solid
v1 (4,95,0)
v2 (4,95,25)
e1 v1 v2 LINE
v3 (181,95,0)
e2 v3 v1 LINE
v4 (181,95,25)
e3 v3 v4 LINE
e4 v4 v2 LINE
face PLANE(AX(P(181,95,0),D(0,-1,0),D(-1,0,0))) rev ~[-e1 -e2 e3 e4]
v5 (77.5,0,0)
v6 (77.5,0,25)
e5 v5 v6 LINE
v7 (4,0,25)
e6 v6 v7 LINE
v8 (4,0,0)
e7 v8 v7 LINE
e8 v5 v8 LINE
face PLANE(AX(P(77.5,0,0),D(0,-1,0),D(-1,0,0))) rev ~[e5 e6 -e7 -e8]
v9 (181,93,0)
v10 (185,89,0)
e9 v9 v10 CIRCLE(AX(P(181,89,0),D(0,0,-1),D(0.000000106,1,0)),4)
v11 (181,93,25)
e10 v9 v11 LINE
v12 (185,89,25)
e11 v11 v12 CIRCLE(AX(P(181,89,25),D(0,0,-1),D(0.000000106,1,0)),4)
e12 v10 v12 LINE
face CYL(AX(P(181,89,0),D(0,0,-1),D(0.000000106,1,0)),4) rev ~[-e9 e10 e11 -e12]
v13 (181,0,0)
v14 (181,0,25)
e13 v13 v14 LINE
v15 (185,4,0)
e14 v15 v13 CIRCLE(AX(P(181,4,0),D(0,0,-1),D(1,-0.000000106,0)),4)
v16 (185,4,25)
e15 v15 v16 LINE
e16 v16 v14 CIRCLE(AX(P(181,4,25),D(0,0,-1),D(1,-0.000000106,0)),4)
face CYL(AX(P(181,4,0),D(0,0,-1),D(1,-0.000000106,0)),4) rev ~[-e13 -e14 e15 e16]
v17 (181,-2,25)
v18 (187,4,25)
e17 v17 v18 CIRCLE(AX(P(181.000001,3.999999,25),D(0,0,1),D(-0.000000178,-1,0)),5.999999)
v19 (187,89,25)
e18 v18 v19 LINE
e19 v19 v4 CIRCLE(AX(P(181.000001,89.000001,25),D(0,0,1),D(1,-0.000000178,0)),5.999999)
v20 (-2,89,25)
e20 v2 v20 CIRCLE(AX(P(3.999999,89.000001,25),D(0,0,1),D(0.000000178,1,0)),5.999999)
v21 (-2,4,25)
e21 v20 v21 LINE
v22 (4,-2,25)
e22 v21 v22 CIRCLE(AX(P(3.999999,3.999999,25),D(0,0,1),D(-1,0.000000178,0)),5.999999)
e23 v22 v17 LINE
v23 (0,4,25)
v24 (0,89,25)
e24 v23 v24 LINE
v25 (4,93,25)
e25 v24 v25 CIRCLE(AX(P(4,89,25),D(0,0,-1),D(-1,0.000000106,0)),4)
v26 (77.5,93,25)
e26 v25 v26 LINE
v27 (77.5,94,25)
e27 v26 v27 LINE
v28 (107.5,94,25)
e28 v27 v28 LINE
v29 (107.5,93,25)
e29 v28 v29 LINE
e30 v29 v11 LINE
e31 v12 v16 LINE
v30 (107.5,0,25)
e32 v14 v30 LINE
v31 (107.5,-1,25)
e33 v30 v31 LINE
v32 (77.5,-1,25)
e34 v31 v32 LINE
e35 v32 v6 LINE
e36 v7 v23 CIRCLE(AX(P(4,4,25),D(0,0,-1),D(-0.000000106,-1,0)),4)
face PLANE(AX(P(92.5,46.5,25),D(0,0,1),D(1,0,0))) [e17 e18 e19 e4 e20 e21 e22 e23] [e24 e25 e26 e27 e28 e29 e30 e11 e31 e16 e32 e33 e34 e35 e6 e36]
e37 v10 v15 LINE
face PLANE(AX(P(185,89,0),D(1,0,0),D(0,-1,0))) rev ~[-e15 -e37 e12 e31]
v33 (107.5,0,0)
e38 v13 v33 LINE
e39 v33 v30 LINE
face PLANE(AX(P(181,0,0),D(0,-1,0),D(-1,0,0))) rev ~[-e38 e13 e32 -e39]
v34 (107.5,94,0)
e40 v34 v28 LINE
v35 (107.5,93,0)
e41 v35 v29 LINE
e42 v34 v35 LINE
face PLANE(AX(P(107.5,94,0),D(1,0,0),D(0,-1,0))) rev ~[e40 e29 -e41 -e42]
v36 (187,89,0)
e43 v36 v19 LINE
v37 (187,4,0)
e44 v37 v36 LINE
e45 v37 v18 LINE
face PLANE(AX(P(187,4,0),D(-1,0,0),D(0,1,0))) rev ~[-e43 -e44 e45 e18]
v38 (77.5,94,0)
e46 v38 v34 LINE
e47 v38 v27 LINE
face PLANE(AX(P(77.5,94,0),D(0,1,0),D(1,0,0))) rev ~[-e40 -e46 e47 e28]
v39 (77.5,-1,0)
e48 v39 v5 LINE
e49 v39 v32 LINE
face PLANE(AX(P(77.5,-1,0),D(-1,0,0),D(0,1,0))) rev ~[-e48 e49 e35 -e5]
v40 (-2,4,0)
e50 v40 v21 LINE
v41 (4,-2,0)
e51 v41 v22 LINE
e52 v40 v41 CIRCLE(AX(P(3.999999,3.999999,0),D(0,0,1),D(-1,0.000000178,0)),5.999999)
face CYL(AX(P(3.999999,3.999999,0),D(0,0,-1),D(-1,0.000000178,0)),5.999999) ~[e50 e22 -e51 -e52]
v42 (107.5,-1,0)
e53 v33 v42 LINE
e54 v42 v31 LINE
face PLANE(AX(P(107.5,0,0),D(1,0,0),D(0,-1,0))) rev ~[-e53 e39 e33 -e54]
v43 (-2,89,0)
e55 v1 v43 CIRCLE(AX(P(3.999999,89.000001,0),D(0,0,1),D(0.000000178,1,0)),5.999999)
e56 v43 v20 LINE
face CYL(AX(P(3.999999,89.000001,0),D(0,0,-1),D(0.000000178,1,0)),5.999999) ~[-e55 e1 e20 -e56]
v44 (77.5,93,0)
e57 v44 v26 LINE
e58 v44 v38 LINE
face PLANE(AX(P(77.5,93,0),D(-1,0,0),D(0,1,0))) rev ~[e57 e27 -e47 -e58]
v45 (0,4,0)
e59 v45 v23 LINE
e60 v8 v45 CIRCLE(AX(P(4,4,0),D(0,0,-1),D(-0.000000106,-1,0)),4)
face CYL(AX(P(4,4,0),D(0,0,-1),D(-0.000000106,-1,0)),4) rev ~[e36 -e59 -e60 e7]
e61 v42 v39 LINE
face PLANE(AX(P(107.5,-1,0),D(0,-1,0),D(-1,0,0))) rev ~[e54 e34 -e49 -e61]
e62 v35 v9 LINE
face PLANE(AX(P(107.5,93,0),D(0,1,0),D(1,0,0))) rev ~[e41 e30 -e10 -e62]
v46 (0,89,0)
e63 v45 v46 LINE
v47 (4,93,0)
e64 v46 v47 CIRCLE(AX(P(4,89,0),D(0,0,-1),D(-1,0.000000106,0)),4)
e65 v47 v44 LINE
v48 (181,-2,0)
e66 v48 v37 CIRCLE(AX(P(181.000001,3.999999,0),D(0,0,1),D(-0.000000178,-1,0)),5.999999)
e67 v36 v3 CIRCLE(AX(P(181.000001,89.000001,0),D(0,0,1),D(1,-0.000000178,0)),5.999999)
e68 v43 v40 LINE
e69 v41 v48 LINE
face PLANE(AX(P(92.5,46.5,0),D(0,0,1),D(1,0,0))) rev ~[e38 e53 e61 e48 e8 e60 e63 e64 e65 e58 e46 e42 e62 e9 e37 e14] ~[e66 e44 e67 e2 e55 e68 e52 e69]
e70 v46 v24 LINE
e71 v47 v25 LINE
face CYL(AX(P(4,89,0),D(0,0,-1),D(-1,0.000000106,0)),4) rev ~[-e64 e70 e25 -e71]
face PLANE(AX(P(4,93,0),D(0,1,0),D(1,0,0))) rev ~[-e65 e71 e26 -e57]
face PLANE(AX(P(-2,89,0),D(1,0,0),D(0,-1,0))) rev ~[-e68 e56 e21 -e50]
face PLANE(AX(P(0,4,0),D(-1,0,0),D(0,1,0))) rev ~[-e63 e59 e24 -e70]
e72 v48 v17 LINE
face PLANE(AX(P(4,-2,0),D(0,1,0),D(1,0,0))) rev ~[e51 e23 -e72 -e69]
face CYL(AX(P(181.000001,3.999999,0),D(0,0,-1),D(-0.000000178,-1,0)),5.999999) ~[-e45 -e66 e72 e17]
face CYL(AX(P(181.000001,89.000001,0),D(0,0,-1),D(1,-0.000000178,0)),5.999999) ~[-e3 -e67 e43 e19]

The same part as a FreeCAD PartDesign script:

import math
import FreeCAD as App
import Part
import Sketcher

V = App.Vector
Q = App.Units.Quantity

doc = App.newDocument("Part")
params = doc.addObject("Spreadsheet::Sheet", "Params")
for row, (alias, value) in enumerate([
    ("sketch1_radius", "5.999999 mm"),
    ("sketch1_radius2", "4 mm"),
    ("sketch1_width", "177 mm"),
    ("sketch1_width2", "30 mm"),
    ("sketch1_height", "85 mm"),
    ("pad1_length", "25 mm"),
], start=1):
    params.set(f"A{row}", alias)
    params.set(f"B{row}", "=" + value)
    params.setAlias(f"B{row}", alias)

body = doc.addObject("PartDesign::Body", "Body")

sketch1 = body.newObject("Sketcher::SketchObject", "Sketch")
sketch1.AttachmentSupport = (doc.getObject("XY_Plane"), [""])
sketch1.MapMode = "FlatFace"
sketch1.addGeometry(Part.ArcOfCircle(Part.Circle(V(4, 89, 0), V(0, 0, 1), 6), math.radians(90), math.radians(180)), False)
sketch1.addGeometry(Part.LineSegment(V(-2, 89, 0), V(-2, 4, 0)), False)
sketch1.addGeometry(Part.ArcOfCircle(Part.Circle(V(4, 4, 0), V(0, 0, 1), 6), math.radians(180), math.radians(270)), False)
sketch1.addGeometry(Part.LineSegment(V(4, -2, 0), V(181, -2, 0)), False)
sketch1.addGeometry(Part.ArcOfCircle(Part.Circle(V(181, 4, 0), V(0, 0, 1), 6), math.radians(-90), math.radians(0)), False)
sketch1.addGeometry(Part.LineSegment(V(187, 4, 0), V(187, 89, 0)), False)
sketch1.addGeometry(Part.ArcOfCircle(Part.Circle(V(181, 89, 0), V(0, 0, 1), 6), math.radians(0), math.radians(90)), False)
sketch1.addGeometry(Part.LineSegment(V(181, 95, 0), V(4, 95, 0)), False)
sketch1.addGeometry(Part.LineSegment(V(77.5, -1, 0), V(77.5, 0, 0)), False)
sketch1.addGeometry(Part.LineSegment(V(77.5, 0, 0), V(4, 0, 0)), False)
sketch1.addGeometry(Part.ArcOfCircle(Part.Circle(V(4, 4, 0), V(0, 0, 1), 4), math.radians(-180), math.radians(-90)), False)
sketch1.addGeometry(Part.LineSegment(V(0, 4, 0), V(0, 89, 0)), False)
sketch1.addGeometry(Part.ArcOfCircle(Part.Circle(V(4, 89, 0), V(0, 0, 1), 4), math.radians(90), math.radians(180)), False)
sketch1.addGeometry(Part.LineSegment(V(4, 93, 0), V(77.5, 93, 0)), False)
sketch1.addGeometry(Part.LineSegment(V(77.5, 93, 0), V(77.5, 94, 0)), False)
sketch1.addGeometry(Part.LineSegment(V(77.5, 94, 0), V(107.5, 94, 0)), False)
sketch1.addGeometry(Part.LineSegment(V(107.5, 94, 0), V(107.5, 93, 0)), False)
sketch1.addGeometry(Part.LineSegment(V(107.5, 93, 0), V(181, 93, 0)), False)
sketch1.addGeometry(Part.ArcOfCircle(Part.Circle(V(181, 89, 0), V(0, 0, 1), 4), math.radians(0), math.radians(90)), False)
sketch1.addGeometry(Part.LineSegment(V(185, 89, 0), V(185, 4, 0)), False)
sketch1.addGeometry(Part.ArcOfCircle(Part.Circle(V(181, 4, 0), V(0, 0, 1), 4), math.radians(-90), math.radians(0)), False)
sketch1.addGeometry(Part.LineSegment(V(181, 0, 0), V(107.5, 0, 0)), False)
sketch1.addGeometry(Part.LineSegment(V(107.5, 0, 0), V(107.5, -1, 0)), False)
sketch1.addGeometry(Part.LineSegment(V(107.5, -1, 0), V(77.5, -1, 0)), False)
sketch1.addConstraint(Sketcher.Constraint("Tangent", 0, 2, 1, 1))
sketch1.addConstraint(Sketcher.Constraint("Tangent", 1, 2, 2, 1))
sketch1.addConstraint(Sketcher.Constraint("Tangent", 2, 2, 3, 1))
sketch1.addConstraint(Sketcher.Constraint("Tangent", 3, 2, 4, 1))
sketch1.addConstraint(Sketcher.Constraint("Tangent", 4, 2, 5, 1))
sketch1.addConstraint(Sketcher.Constraint("Tangent", 5, 2, 6, 1))
sketch1.addConstraint(Sketcher.Constraint("Tangent", 6, 2, 7, 1))
sketch1.addConstraint(Sketcher.Constraint("Tangent", 7, 2, 0, 1))
sketch1.addConstraint(Sketcher.Constraint("Coincident", 8, 2, 9, 1))
sketch1.addConstraint(Sketcher.Constraint("Tangent", 9, 2, 10, 2))
sketch1.addConstraint(Sketcher.Constraint("Tangent", 10, 1, 11, 1))
sketch1.addConstraint(Sketcher.Constraint("Tangent", 11, 2, 12, 2))
sketch1.addConstraint(Sketcher.Constraint("Tangent", 12, 1, 13, 1))
sketch1.addConstraint(Sketcher.Constraint("Coincident", 13, 2, 14, 1))
sketch1.addConstraint(Sketcher.Constraint("Coincident", 14, 2, 15, 1))
sketch1.addConstraint(Sketcher.Constraint("Coincident", 15, 2, 16, 1))
sketch1.addConstraint(Sketcher.Constraint("Coincident", 16, 2, 17, 1))
sketch1.addConstraint(Sketcher.Constraint("Tangent", 17, 2, 18, 2))
sketch1.addConstraint(Sketcher.Constraint("Tangent", 18, 1, 19, 1))
sketch1.addConstraint(Sketcher.Constraint("Tangent", 19, 2, 20, 2))
sketch1.addConstraint(Sketcher.Constraint("Tangent", 20, 1, 21, 1))
sketch1.addConstraint(Sketcher.Constraint("Coincident", 21, 2, 22, 1))
sketch1.addConstraint(Sketcher.Constraint("Coincident", 22, 2, 23, 1))
sketch1.addConstraint(Sketcher.Constraint("Coincident", 23, 2, 8, 1))
sketch1.addConstraint(Sketcher.Constraint("Vertical", 1))
sketch1.addConstraint(Sketcher.Constraint("Horizontal", 3))
sketch1.addConstraint(Sketcher.Constraint("Vertical", 5))
sketch1.addConstraint(Sketcher.Constraint("Horizontal", 7))
sketch1.addConstraint(Sketcher.Constraint("Vertical", 8))
sketch1.addConstraint(Sketcher.Constraint("Horizontal", 9))
sketch1.addConstraint(Sketcher.Constraint("Vertical", 11))
sketch1.addConstraint(Sketcher.Constraint("Horizontal", 13))
sketch1.addConstraint(Sketcher.Constraint("Vertical", 14))
sketch1.addConstraint(Sketcher.Constraint("Horizontal", 15))
sketch1.addConstraint(Sketcher.Constraint("Vertical", 16))
sketch1.addConstraint(Sketcher.Constraint("Horizontal", 17))
sketch1.addConstraint(Sketcher.Constraint("Vertical", 19))
sketch1.addConstraint(Sketcher.Constraint("Horizontal", 21))
sketch1.addConstraint(Sketcher.Constraint("Vertical", 22))
sketch1.addConstraint(Sketcher.Constraint("Horizontal", 23))
sketch1.addConstraint(Sketcher.Constraint("Coincident", 10, 3, 2, 3))
sketch1.addConstraint(Sketcher.Constraint("Coincident", 12, 3, 0, 3))
sketch1.addConstraint(Sketcher.Constraint("Coincident", 18, 3, 6, 3))
sketch1.addConstraint(Sketcher.Constraint("Coincident", 20, 3, 4, 3))
sketch1.addConstraint(Sketcher.Constraint("Equal", 0, 2))
sketch1.addConstraint(Sketcher.Constraint("Equal", 2, 4))
sketch1.addConstraint(Sketcher.Constraint("Equal", 4, 6))
sketch1.addConstraint(Sketcher.Constraint("Equal", 12, 18))
sketch1.addConstraint(Sketcher.Constraint("PointOnObject", 8, 2, -1))
sketch1.addConstraint(Sketcher.Constraint("PointOnObject", 10, 1, -2))
sketch1.addConstraint(Sketcher.Constraint("Vertical", 8, 2, 13, 2))
sketch1.addConstraint(Sketcher.Constraint("Vertical", 16, 2, 21, 2))
sketch1.addConstraint(Sketcher.Constraint("Equal", 13, 17))
sketch1.addConstraint(Sketcher.Constraint("Equal", 8, 14))
sketch1.addConstraint(Sketcher.Constraint("Radius", 0, Q("5.999999 mm")))
sketch1.addConstraint(Sketcher.Constraint("Radius", 10, Q("4 mm")))
sketch1.addConstraint(Sketcher.Constraint("DistanceX", 3, 1, 3, 2, Q("177 mm")))
sketch1.addConstraint(Sketcher.Constraint("DistanceX", 15, 1, 15, 2, Q("30 mm")))
sketch1.addConstraint(Sketcher.Constraint("DistanceY", 1, 2, 1, 1, Q("85 mm")))
sketch1.addConstraint(Sketcher.Constraint("DistanceY", 8, 1, 8, 2, Q("1 mm")))
sketch1.setExpression("Constraints[54]", "Params.sketch1_radius")
sketch1.setExpression("Constraints[55]", "Params.sketch1_radius2")
sketch1.setExpression("Constraints[56]", "Params.sketch1_width")
sketch1.setExpression("Constraints[57]", "Params.sketch1_width2")
sketch1.setExpression("Constraints[58]", "Params.sketch1_height")
pad1 = body.newObject("PartDesign::Pad", "Pad")
pad1.Profile = sketch1
pad1.setExpression("Length", "Params.pad1_length")

doc.recompute()
